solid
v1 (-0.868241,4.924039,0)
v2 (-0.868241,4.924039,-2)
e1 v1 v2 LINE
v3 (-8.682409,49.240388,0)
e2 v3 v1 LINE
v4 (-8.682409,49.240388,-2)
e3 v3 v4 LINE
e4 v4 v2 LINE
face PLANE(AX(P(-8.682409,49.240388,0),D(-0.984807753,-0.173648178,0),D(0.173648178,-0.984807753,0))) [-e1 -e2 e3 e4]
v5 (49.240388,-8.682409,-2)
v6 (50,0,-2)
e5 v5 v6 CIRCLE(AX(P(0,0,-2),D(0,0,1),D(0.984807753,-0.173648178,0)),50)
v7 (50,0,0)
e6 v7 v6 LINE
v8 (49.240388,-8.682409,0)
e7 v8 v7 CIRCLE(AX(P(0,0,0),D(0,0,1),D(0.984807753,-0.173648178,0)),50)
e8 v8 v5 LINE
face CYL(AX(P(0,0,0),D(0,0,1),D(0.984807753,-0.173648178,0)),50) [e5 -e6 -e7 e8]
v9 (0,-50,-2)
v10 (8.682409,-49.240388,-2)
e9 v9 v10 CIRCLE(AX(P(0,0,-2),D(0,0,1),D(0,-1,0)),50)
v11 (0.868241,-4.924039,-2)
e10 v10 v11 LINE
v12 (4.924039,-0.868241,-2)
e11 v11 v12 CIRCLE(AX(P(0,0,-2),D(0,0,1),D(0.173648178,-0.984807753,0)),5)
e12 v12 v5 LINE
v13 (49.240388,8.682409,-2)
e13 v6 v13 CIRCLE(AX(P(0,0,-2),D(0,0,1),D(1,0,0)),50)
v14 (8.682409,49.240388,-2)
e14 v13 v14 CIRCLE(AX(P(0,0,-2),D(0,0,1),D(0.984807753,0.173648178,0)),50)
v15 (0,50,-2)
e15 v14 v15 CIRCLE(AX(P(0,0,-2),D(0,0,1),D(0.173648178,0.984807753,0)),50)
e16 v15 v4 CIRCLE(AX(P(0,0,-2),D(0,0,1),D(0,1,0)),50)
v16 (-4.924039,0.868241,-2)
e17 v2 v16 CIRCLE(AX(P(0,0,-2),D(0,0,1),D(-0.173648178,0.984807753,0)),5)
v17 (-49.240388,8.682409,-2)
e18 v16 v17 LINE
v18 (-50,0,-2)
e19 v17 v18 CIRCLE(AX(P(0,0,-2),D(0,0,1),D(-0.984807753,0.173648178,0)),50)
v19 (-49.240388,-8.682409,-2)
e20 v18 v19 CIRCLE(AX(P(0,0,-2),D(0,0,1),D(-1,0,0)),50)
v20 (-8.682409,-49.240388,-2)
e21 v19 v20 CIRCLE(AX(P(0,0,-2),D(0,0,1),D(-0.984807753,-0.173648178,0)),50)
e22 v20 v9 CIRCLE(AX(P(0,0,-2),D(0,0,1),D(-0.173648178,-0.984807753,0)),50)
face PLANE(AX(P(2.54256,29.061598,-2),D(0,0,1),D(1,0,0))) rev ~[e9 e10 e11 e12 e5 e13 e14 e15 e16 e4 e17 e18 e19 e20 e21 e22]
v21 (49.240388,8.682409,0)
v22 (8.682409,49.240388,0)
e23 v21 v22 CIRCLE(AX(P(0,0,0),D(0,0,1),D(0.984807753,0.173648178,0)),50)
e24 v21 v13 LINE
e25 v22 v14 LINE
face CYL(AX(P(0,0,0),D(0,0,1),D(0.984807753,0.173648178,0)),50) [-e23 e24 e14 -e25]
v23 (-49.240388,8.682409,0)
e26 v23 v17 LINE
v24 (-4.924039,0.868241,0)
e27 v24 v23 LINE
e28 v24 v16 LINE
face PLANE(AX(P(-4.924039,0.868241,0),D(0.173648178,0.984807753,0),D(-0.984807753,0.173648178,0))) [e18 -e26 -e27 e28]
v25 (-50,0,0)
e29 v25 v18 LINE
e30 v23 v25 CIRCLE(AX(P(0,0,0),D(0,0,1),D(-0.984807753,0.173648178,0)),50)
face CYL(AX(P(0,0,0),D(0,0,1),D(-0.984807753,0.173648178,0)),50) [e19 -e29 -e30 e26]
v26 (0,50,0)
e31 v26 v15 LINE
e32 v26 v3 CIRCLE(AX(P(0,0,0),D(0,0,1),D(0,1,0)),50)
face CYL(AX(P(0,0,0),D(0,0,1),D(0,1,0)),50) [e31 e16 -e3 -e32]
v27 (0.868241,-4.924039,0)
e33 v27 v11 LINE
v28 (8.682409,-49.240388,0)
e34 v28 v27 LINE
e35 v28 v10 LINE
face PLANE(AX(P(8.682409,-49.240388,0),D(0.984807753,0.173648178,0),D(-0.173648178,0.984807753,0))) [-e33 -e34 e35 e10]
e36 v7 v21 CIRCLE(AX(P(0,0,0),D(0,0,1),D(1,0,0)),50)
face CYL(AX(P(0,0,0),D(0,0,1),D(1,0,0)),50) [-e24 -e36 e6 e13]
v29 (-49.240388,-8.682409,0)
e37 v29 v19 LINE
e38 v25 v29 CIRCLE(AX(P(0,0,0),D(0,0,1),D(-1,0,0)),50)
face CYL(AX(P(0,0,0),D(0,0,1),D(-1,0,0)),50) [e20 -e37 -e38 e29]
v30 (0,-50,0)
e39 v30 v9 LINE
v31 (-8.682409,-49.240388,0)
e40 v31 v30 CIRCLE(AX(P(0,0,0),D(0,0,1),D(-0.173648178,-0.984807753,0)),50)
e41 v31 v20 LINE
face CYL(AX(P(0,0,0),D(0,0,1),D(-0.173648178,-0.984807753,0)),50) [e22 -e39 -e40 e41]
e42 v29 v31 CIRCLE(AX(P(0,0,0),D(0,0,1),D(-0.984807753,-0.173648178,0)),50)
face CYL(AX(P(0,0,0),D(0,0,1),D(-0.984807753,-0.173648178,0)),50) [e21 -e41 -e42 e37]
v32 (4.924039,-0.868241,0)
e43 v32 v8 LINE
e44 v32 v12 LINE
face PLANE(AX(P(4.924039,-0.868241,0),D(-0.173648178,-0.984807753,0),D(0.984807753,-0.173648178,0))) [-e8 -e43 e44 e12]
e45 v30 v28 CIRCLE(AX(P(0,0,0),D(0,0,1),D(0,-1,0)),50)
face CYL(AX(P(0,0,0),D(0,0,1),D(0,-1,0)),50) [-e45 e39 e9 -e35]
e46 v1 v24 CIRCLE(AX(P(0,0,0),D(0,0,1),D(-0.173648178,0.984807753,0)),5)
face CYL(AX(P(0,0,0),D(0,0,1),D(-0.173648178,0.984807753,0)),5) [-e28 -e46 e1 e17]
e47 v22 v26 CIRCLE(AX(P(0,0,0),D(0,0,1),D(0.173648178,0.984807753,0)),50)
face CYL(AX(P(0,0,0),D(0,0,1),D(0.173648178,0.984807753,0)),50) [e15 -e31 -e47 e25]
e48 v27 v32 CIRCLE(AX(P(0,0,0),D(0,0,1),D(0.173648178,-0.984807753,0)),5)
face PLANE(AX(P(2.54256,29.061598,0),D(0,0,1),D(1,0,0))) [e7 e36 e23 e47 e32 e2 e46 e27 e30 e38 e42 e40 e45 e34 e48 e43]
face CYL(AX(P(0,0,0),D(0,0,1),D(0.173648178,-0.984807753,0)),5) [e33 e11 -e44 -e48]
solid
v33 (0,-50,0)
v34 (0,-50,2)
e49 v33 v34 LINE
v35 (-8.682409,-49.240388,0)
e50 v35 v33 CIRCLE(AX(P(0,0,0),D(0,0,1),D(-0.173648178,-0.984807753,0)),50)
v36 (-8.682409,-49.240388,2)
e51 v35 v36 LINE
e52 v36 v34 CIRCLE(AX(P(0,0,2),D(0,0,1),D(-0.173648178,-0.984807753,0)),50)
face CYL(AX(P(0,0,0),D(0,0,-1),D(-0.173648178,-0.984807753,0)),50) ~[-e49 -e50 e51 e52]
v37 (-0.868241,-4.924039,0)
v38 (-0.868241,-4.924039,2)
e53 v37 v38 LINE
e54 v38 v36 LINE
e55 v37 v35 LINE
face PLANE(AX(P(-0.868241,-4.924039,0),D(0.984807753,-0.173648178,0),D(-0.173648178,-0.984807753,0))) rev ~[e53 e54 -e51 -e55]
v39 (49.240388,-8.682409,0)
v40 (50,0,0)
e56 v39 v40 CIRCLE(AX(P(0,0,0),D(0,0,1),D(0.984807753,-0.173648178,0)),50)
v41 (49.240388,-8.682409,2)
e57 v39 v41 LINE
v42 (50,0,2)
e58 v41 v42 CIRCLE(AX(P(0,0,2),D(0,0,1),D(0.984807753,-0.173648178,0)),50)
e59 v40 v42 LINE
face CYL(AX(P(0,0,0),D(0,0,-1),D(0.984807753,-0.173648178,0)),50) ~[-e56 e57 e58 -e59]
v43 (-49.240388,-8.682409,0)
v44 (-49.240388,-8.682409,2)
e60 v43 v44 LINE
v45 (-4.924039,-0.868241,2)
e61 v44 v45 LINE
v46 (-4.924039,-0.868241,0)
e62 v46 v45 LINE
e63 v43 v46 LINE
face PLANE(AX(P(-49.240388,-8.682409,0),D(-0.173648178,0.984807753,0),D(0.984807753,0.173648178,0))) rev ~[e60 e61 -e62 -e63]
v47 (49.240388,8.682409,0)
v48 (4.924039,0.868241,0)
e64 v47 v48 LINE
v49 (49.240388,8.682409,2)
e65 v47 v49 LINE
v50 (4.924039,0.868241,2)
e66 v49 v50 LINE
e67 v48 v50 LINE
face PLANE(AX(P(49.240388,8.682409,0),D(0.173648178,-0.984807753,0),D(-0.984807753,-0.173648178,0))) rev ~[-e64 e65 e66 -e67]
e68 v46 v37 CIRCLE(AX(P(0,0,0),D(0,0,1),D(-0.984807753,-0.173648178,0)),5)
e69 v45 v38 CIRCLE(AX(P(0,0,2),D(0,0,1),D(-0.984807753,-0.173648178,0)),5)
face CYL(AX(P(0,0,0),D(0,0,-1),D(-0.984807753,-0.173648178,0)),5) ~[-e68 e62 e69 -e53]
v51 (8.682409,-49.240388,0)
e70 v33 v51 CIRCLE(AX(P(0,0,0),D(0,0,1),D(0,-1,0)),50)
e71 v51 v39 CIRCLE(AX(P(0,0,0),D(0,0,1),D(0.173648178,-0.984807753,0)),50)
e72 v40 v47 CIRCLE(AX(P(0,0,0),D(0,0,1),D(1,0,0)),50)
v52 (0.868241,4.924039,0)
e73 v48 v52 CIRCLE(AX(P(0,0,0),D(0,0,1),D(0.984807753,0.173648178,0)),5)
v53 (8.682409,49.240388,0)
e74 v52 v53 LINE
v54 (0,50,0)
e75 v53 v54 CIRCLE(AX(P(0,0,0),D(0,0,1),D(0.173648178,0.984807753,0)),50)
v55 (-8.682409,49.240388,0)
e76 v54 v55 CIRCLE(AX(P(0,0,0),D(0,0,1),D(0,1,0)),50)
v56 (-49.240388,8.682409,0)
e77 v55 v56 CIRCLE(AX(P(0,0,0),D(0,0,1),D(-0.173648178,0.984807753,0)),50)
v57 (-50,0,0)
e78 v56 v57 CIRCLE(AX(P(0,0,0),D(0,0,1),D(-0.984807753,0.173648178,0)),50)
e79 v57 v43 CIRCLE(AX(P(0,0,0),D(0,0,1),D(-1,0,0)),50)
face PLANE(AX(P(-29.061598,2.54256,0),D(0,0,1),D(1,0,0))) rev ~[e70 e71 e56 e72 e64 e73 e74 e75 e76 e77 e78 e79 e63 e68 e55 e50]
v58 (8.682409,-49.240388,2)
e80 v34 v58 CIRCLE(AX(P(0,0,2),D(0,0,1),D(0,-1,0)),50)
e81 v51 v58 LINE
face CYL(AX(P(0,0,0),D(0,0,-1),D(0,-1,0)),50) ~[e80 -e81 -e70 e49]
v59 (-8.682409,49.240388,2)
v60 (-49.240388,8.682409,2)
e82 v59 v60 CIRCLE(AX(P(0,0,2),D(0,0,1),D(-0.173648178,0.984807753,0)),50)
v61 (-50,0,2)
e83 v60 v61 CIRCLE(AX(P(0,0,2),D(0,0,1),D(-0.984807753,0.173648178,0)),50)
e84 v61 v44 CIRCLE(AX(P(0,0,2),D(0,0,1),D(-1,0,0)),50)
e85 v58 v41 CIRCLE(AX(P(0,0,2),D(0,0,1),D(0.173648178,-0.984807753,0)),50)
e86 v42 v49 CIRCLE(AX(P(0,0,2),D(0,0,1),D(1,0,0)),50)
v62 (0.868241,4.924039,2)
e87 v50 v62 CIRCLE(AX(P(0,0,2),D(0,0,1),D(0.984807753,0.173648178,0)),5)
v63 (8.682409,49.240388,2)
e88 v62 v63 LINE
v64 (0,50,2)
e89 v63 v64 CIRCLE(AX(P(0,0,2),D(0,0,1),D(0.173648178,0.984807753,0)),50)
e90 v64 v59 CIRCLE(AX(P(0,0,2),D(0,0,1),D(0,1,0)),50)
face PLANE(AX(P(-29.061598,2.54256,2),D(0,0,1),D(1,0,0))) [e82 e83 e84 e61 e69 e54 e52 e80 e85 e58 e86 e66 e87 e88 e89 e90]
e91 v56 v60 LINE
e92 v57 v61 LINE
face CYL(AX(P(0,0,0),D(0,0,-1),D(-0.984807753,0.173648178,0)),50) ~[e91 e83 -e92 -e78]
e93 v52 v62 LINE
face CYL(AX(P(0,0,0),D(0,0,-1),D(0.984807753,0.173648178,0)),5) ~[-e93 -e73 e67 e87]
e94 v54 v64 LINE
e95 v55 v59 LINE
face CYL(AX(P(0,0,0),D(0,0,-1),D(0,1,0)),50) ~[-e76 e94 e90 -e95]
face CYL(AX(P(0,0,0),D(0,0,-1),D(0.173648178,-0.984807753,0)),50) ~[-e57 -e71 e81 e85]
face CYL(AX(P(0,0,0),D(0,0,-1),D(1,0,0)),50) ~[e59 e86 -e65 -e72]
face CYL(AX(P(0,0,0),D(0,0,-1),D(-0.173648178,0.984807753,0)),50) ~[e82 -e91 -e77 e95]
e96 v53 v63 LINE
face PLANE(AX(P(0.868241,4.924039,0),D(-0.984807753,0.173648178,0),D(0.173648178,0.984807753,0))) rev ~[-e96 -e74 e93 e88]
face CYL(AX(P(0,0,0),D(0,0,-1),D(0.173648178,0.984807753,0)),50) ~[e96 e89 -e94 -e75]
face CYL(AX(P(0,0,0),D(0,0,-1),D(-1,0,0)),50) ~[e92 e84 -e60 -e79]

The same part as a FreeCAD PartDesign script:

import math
import FreeCAD as App
import Part
import Sketcher

V = App.Vector
Q = App.Units.Quantity

doc = App.newDocument("Part")
body = doc.addObject("PartDesign::Body", "Body")

# Sketch on XY plane
sketch1 = doc.addObject("Sketcher::SketchObject", "Sketch")
body.addObject(sketch1)
sketch1.AttachmentSupport = (doc.XY_Plane, [""])
sketch1.MapMode = "FlatFace"
sketch1.addGeometry([
    Part.LineSegment(V(1, 5, 0), V(9, 49, 0)),  # 0
    Part.ArcOfCircle(Part.Circle(V(0, 0, 0), V(0, 0, 1), 50), math.radians(80), math.radians(90)),  # 1
    Part.ArcOfCircle(Part.Circle(V(0, 0, 0), V(0, 0, 1), 50), math.radians(90), math.radians(100)),  # 2
    Part.ArcOfCircle(Part.Circle(V(0, 0, 0), V(0, 0, 1), 50), math.radians(100), math.radians(170)),  # 3
    Part.ArcOfCircle(Part.Circle(V(0, 0, 0), V(0, 0, 1), 50), math.radians(170), math.radians(180)),  # 4
    Part.ArcOfCircle(Part.Circle(V(0, 0, 0), V(0, 0, 1), 50), math.radians(180), math.radians(190)),  # 5
    Part.LineSegment(V(-49, -9, 0), V(-5, -1, 0)),  # 6
    Part.ArcOfCircle(Part.Circle(V(0, 0, 0), V(0, 0, 1), 5), math.radians(-170), math.radians(-100)),  # 7
    Part.LineSegment(V(-1, -5, 0), V(-9, -49, 0)),  # 8
    Part.ArcOfCircle(Part.Circle(V(0, 0, 0), V(0, 0, 1), 50), math.radians(-100), math.radians(-90)),  # 9
    Part.ArcOfCircle(Part.Circle(V(0, 0, 0), V(0, 0, 1), 50), math.radians(-90), math.radians(-80)),  # 10
    Part.ArcOfCircle(Part.Circle(V(0, 0, 0), V(0, 0, 1), 50), math.radians(-80), math.radians(-10)),  # 11
    Part.ArcOfCircle(Part.Circle(V(0, 0, 0), V(0, 0, 1), 50), math.radians(-10), math.radians(0)),  # 12
    Part.ArcOfCircle(Part.Circle(V(0, 0, 0), V(0, 0, 1), 50), math.radians(0), math.radians(10)),  # 13
    Part.LineSegment(V(49, 9, 0), V(5, 1, 0)),  # 14
    Part.ArcOfCircle(Part.Circle(V(0, 0, 0), V(0, 0, 1), 5), math.radians(10), math.radians(80)),  # 15
], False)
sketch1.addConstraint([
    Sketcher.Constraint("Coincident", 0, 2, 1, 1),
    Sketcher.Constraint("Tangent", 1, 2, 2, 1),
    Sketcher.Constraint("Tangent", 2, 2, 3, 1),
    Sketcher.Constraint("Tangent", 3, 2, 4, 1),
    Sketcher.Constraint("Tangent", 4, 2, 5, 1),
    Sketcher.Constraint("Coincident", 5, 2, 6, 1),
    Sketcher.Constraint("Coincident", 6, 2, 7, 1),
    Sketcher.Constraint("Coincident", 7, 2, 8, 1),
    Sketcher.Constraint("Coincident", 8, 2, 9, 1),
    Sketcher.Constraint("Tangent", 9, 2, 10, 1),
    Sketcher.Constraint("Tangent", 10, 2, 11, 1),
    Sketcher.Constraint("Tangent", 11, 2, 12, 1),
    Sketcher.Constraint("Tangent", 12, 2, 13, 1),
    Sketcher.Constraint("Coincident", 13, 2, 14, 1),
    Sketcher.Constraint("Coincident", 14, 2, 15, 1),
    Sketcher.Constraint("Coincident", 15, 2, 0, 1),
    Sketcher.Constraint("Coincident", 1, 3, -1, 1),
    Sketcher.Constraint("Coincident", 3, 3, -1, 1),
    Sketcher.Constraint("Coincident", 5, 3, -1, 1),
    Sketcher.Constraint("Coincident", 7, 3, -1, 1),
    Sketcher.Constraint("Coincident", 9, 3, -1, 1),
    Sketcher.Constraint("Coincident", 11, 3, -1, 1),
    Sketcher.Constraint("Coincident", 13, 3, -1, 1),
    Sketcher.Constraint("Coincident", 15, 3, -1, 1),
    Sketcher.Constraint("Equal", 5, 9),
    Sketcher.Constraint("Equal", 7, 15),
    Sketcher.Constraint("PointOnObject", 1, 2, -2),
    Sketcher.Constraint("PointOnObject", 4, 2, -1),
    Sketcher.Constraint("PointOnObject", 9, 2, -2),
    Sketcher.Constraint("PointOnObject", 12, 2, -1),
    Sketcher.Constraint("Parallel", 0, 8),
    Sketcher.Constraint("Parallel", 6, 14),
    Sketcher.Constraint("Horizontal", 0, 2, 2, 2),
    Sketcher.Constraint("Horizontal", 8, 2, 10, 2),
    Sketcher.Constraint("Horizontal", 5, 2, 11, 2),
    Sketcher.Constraint("Horizontal", 3, 2, 13, 2),
    Sketcher.Constraint("Vertical", 3, 2, 5, 2),
    Sketcher.Constraint("Vertical", 2, 2, 8, 2),
    Sketcher.Constraint("Radius", 1, 50.0),
    Sketcher.Constraint("Radius", 7, 5.0),
    Sketcher.Constraint("Angle", 0, Q("80 deg")),
    Sketcher.Constraint("Angle", 6, Q("10 deg")),
    Sketcher.Constraint("DistanceX", -1, 1, 0, 2, 8.682409),
    Sketcher.Constraint("DistanceY", -1, 1, 3, 2, 8.682409),
])
pad1 = doc.addObject("PartDesign::Pad", "Pad")
body.addObject(pad1)
pad1.Profile = sketch1
pad1.Length = 2
body2 = doc.addObject("PartDesign::Body", "Body001")

# Sketch on XY plane
sketch2 = doc.addObject("Sketcher::SketchObject", "Sketch001")
body2.addObject(sketch2)
sketch2.AttachmentSupport = (doc.getObject("XY_Plane001"), [""])
sketch2.MapMode = "FlatFace"
sketch2.addGeometry([
    Part.ArcOfCircle(Part.Circle(V(0, 0, 0), V(0, 0, 1), 5), math.radians(-80), math.radians(-10)),  # 0
    Part.LineSegment(V(5, -1, 0), V(49, -9, 0)),  # 1
    Part.ArcOfCircle(Part.Circle(V(0, 0, 0), V(0, 0, 1), 50), math.radians(-10), math.radians(0)),  # 2
    Part.ArcOfCircle(Part.Circle(V(0, 0, 0), V(0, 0, 1), 50), math.radians(0), math.radians(10)),  # 3
    Part.ArcOfCircle(Part.Circle(V(0, 0, 0), V(0, 0, 1), 50), math.radians(10), math.radians(80)),  # 4
    Part.ArcOfCircle(Part.Circle(V(0, 0, 0), V(0, 0, 1), 50), math.radians(80), math.radians(90)),  # 5
    Part.ArcOfCircle(Part.Circle(V(0, 0, 0), V(0, 0, 1), 50), math.radians(90), math.radians(100)),  # 6
    Part.LineSegment(V(-9, 49, 0), V(-1, 5, 0)),  # 7
    Part.ArcOfCircle(Part.Circle(V(0, 0, 0), V(0, 0, 1), 5), math.radians(100), math.radians(170)),  # 8
    Part.LineSegment(V(-5, 1, 0), V(-49, 9, 0)),  # 9
    Part.ArcOfCircle(Part.Circle(V(0, 0, 0), V(0, 0, 1), 50), math.radians(170), math.radians(180)),  # 10
    Part.ArcOfCircle(Part.Circle(V(0, 0, 0), V(0, 0, 1), 50), math.radians(180), math.radians(190)),  # 11
    Part.ArcOfCircle(Part.Circle(V(0, 0, 0), V(0, 0, 1), 50), math.radians(-170), math.radians(-100)),  # 12
    Part.ArcOfCircle(Part.Circle(V(0, 0, 0), V(0, 0, 1), 50), math.radians(-100), math.radians(-90)),  # 13
    Part.ArcOfCircle(Part.Circle(V(0, 0, 0), V(0, 0, 1), 50), math.radians(-90), math.radians(-80)),  # 14
    Part.LineSegment(V(9, -49, 0), V(1, -5, 0)),  # 15
], False)
sketch2.addConstraint([
    Sketcher.Constraint("Coincident", 0, 2, 1, 1),
    Sketcher.Constraint("Coincident", 1, 2, 2, 1),
    Sketcher.Constraint("Tangent", 2, 2, 3, 1),
    Sketcher.Constraint("Tangent", 3, 2, 4, 1),
    Sketcher.Constraint("Tangent", 4, 2, 5, 1),
    Sketcher.Constraint("Tangent", 5, 2, 6, 1),
    Sketcher.Constraint("Coincident", 6, 2, 7, 1),
    Sketcher.Constraint("Coincident", 7, 2, 8, 1),
    Sketcher.Constraint("Coincident", 8, 2, 9, 1),
    Sketcher.Constraint("Coincident", 9, 2, 10, 1),
    Sketcher.Constraint("Tangent", 10, 2, 11, 1),
    Sketcher.Constraint("Tangent", 11, 2, 12, 1),
    Sketcher.Constraint("Tangent", 12, 2, 13, 1),
    Sketcher.Constraint("Tangent", 13, 2, 14, 1),
    Sketcher.Constraint("Coincident", 14, 2, 15, 1),
    Sketcher.Constraint("Coincident", 15, 2, 0, 1),
    Sketcher.Constraint("Coincident", 0, 3, -1, 1),
    Sketcher.Constraint("Coincident", 2, 3, -1, 1),
    Sketcher.Constraint("Coincident", 4, 3, -1, 1),
    Sketcher.Constraint("Coincident", 6, 3, -1, 1),
    Sketcher.Constraint("Coincident", 8, 3, -1, 1),
    Sketcher.Constraint("Coincident", 10, 3, -1, 1),
    Sketcher.Constraint("Coincident", 12, 3, -1, 1),
    Sketcher.Constraint("Coincident", 14, 3, -1, 1),
    Sketcher.Constraint("Equal", 0, 8),
    Sketcher.Constraint("Equal", 6, 10),
    Sketcher.Constraint("PointOnObject", 2, 2, -1),
    Sketcher.Constraint("PointOnObject", 5, 2, -2),
    Sketcher.Constraint("PointOnObject", 10, 2, -1),
    Sketcher.Constraint("PointOnObject", 13, 2, -2),
    Sketcher.Constraint("Parallel", 1, 9),
    Sketcher.Constraint("Parallel", 7, 15),
    Sketcher.Constraint("Horizontal", 4, 2, 6, 2),
    Sketcher.Constraint("Horizontal", 3, 2, 9, 2),
    Sketcher.Constraint("Horizontal", 1, 2, 11, 2),
    Sketcher.Constraint("Horizontal", 12, 2, 14, 2),
    Sketcher.Constraint("Vertical", 1, 2, 3, 2),
    Sketcher.Constraint("Vertical", 6, 2, 12, 2),
    Sketcher.Constraint("Radius", 0, 5.0),
    Sketcher.Constraint("Radius", 2, 50.0),
    Sketcher.Constraint("Angle", 1, Q("-10 deg")),
    Sketcher.Constraint("Angle", 7, Q("-80 deg")),
    Sketcher.Constraint("DistanceX", -1, 1, 0, 2, 4.924039),
    Sketcher.Constraint("DistanceX", -1, 1, 4, 2, 8.682409),
])
pad2 = doc.addObject("PartDesign::Pad", "Pad001")
body2.addObject(pad2)
pad2.Profile = sketch2
pad2.Length = 2
pad2.Reversed = True

doc.recompute()
